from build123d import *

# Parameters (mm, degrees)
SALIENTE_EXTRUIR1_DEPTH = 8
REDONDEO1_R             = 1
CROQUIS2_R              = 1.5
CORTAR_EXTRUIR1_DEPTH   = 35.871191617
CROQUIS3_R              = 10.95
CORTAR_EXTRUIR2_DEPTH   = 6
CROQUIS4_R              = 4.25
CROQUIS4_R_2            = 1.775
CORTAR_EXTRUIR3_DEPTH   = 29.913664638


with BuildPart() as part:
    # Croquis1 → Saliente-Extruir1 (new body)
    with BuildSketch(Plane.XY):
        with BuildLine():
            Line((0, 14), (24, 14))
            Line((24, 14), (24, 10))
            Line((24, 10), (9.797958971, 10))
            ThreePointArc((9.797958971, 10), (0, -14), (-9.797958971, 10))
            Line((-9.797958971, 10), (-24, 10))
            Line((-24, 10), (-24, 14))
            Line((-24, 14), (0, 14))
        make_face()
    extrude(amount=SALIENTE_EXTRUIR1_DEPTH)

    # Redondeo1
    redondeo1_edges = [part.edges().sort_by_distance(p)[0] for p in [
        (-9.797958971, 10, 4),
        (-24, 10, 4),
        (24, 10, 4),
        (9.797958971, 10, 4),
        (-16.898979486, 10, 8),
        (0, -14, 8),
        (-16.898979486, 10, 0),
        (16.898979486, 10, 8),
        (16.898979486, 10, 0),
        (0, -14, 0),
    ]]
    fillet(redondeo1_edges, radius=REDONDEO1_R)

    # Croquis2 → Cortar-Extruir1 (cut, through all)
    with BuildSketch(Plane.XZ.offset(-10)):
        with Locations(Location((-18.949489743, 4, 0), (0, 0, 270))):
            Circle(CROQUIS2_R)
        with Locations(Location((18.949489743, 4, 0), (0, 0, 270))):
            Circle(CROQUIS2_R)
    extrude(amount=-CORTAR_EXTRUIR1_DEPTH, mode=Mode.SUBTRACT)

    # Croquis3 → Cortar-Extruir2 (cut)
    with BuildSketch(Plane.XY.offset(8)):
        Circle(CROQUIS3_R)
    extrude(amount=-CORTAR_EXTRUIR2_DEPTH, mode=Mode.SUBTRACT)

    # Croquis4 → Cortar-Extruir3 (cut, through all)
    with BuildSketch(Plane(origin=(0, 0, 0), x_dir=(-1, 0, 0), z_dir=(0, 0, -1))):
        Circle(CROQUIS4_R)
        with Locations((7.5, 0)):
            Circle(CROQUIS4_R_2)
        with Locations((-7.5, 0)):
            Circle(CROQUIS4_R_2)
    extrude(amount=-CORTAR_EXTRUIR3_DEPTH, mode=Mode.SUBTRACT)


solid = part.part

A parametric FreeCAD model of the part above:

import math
import FreeCAD as App
import Part
import Sketcher
from FreeCAD import Vector
Q = App.Units.Quantity


def edges_at(feature, points):
    """Names of the edges that pass closest to the given points."""
    edges = feature.Shape.Edges
    near = lambda p: min(range(len(edges)), key=lambda i: edges[i].distToShape(Part.Vertex(*p))[0])
    return sorted({f"Edge{near(p) + 1}" for p in points})

doc = App.newDocument("Part")
params = doc.addObject("Spreadsheet::Sheet", "Params")
for row, (alias, value) in enumerate([
    ("sketch1_radius", "14 mm"),
    ("sketch1_width", "48 mm"),
    ("sketch1_height", "4 mm"),
    ("pad1_length", "8 mm"),
    ("fillet_radius", "1 mm"),
    ("sketch2_diameter", "3 mm"),
    ("sketch3_diameter", "21.9 mm"),
    ("pocket2_length", "6 mm"),
    ("sketch4_diameter", "8.5 mm"),
    ("sketch4_diameter2", "3.55 mm"),
], start=1):
    params.set(f"A{row}", alias)
    params.set(f"B{row}", "=" + value)
    params.setAlias(f"B{row}", alias)

body = doc.addObject("PartDesign::Body", "Body")

# Sketch on XY plane
sketch1 = body.newObject("Sketcher::SketchObject", "Sketch")
sketch1.AttachmentSupport = (doc.getObject("XY_Plane"), [""])
sketch1.MapMode = "FlatFace"
sketch1.addGeometry([
    Part.LineSegment(Vector(24, 10, 0), Vector(24, 14, 0)),  # 0
    Part.LineSegment(Vector(24, 14, 0), Vector(-24, 14, 0)),  # 1
    Part.LineSegment(Vector(-24, 14, 0), Vector(-24, 10, 0)),  # 2
    Part.LineSegment(Vector(-24, 10, 0), Vector(-9.797959, 10, 0)),  # 3
    Part.ArcOfCircle(Part.Circle(Vector(0, 0, 0), Vector(0, 0, 1), 14), math.radians(134.415309), math.radians(405.584691)),  # 4
    Part.LineSegment(Vector(9.797959, 10, 0), Vector(24, 10, 0)),  # 5
], False)
sketch1.addConstraint([
    Sketcher.Constraint("Coincident", 0, 2, 1, 1),
    Sketcher.Constraint("Coincident", 1, 2, 2, 1),
    Sketcher.Constraint("Coincident", 2, 2, 3, 1),
    Sketcher.Constraint("Coincident", 3, 2, 4, 1),
    Sketcher.Constraint("Coincident", 4, 2, 5, 1),
    Sketcher.Constraint("Coincident", 5, 2, 0, 1),
    Sketcher.Constraint("Vertical", 0),
    Sketcher.Constraint("Horizontal", 1),
    Sketcher.Constraint("Vertical", 2),
    Sketcher.Constraint("Horizontal", 3),
    Sketcher.Constraint("Horizontal", 5),
    Sketcher.Constraint("Coincident", 4, 3, -1, 1),
    Sketcher.Constraint("Symmetric", 2, 2, 5, 2, -2),
    Sketcher.Constraint("Radius", 4, Q("14 mm")),
    Sketcher.Constraint("DistanceX", 1, 2, 1, 1, Q("48 mm")),
    Sketcher.Constraint("DistanceY", 0, 1, 0, 2, Q("4 mm")),
    Sketcher.Constraint("DistanceY", -1, 1, 0, 2, Q("14 mm")),
])
sketch1.setExpression("Constraints[13]", "Params.sketch1_radius")
sketch1.setExpression("Constraints[14]", "Params.sketch1_width")
sketch1.setExpression("Constraints[15]", "Params.sketch1_height")
pad1 = body.newObject("PartDesign::Pad", "Pad")
pad1.Profile = sketch1
pad1.setExpression("Length", "Params.pad1_length")
doc.recompute()

fillet = body.newObject("PartDesign::Fillet", "Fillet")
fillet.Base = (pad1, edges_at(pad1, [
    (-9.798, 10, 4),
    (-24, 10, 4),
    (24, 10, 4),
    (9.798, 10, 4),
    (-16.899, 10, 8),
    (0, -14, 8),
    (-16.899, 10, 0),
    (16.899, 10, 8),
    (16.899, 10, 0),
    (0, -14, 0),
]))
fillet.setExpression("Radius", "Params.fillet_radius")

# Sketch on XZ plane
sketch2 = body.newObject("Sketcher::SketchObject", "Sketch001")
sketch2.AttachmentSupport = (doc.getObject("XZ_Plane"), [""])
sketch2.MapMode = "FlatFace"
sketch2.AttachmentOffset = App.Placement(Vector(0, 0, -10), App.Rotation())
sketch2.addGeometry([
    Part.Circle(Vector(-18.94949, 4, 0), Vector(0, 0, 1), 1.5),
    Part.Circle(Vector(18.94949, 4, 0), Vector(0, 0, 1), 1.5),
], False)
sketch2.addConstraint([
    Sketcher.Constraint("Equal", 0, 1),
    Sketcher.Constraint("Symmetric", 0, 3, 1, 3, -2),
    Sketcher.Constraint("Diameter", 0, Q("3 mm")),
    Sketcher.Constraint("DistanceY", -1, 1, 0, 3, Q("4 mm")),
    Sketcher.Constraint("DistanceX", 0, 3, -1, 1, Q("18.94949 mm")),
])
sketch2.setExpression("Constraints[2]", "Params.sketch2_diameter")
pocket1 = body.newObject("PartDesign::Pocket", "Pocket")
pocket1.Profile = sketch2
pocket1.Type = "ThroughAll"

# Sketch on XY plane
sketch3 = body.newObject("Sketcher::SketchObject", "Sketch002")
sketch3.AttachmentSupport = (doc.getObject("XY_Plane"), [""])
sketch3.MapMode = "FlatFace"
sketch3.AttachmentOffset = App.Placement(Vector(0, 0, 8), App.Rotation())
sketch3.addGeometry(Part.Circle(Vector(0, 0, 0), Vector(0, 0, 1), 10.95), False)
sketch3.addConstraint([
    Sketcher.Constraint("Coincident", 0, 3, -1, 1),
    Sketcher.Constraint("Diameter", 0, Q("21.9 mm")),
])
sketch3.setExpression("Constraints[1]", "Params.sketch3_diameter")
pocket2 = body.newObject("PartDesign::Pocket", "Pocket001")
pocket2.Profile = sketch3
pocket2.setExpression("Length", "Params.pocket2_length")

# Sketch on XY plane
sketch4 = body.newObject("Sketcher::SketchObject", "Sketch003")
sketch4.AttachmentSupport = (doc.getObject("XY_Plane"), [""])
sketch4.MapMode = "FlatFace"
sketch4.addGeometry([
    Part.Circle(Vector(0, 0, 0), Vector(0, 0, 1), 4.25),
    Part.Circle(Vector(-7.5, 0, 0), Vector(0, 0, 1), 1.775),
    Part.Circle(Vector(7.5, 0, 0), Vector(0, 0, 1), 1.775),
], False)
sketch4.addConstraint([
    Sketcher.Constraint("Coincident", 0, 3, -1, 1),
    Sketcher.Constraint("Equal", 1, 2),
    Sketcher.Constraint("Symmetric", 1, 3, 2, 3, -1, 1),
    Sketcher.Constraint("PointOnObject", 1, 3, -1),
    Sketcher.Constraint("Diameter", 0, Q("8.5 mm")),
    Sketcher.Constraint("Diameter", 1, Q("3.55 mm")),
    Sketcher.Constraint("DistanceX", 1, 3, 2, 3, Q("15 mm")),
])
sketch4.setExpression("Constraints[4]", "Params.sketch4_diameter")
sketch4.setExpression("Constraints[5]", "Params.sketch4_diameter2")
pocket3 = body.newObject("PartDesign::Pocket", "Pocket002")
pocket3.Profile = sketch4
pocket3.Type = "ThroughAll"
pocket3.Reversed = True

doc.recompute()
